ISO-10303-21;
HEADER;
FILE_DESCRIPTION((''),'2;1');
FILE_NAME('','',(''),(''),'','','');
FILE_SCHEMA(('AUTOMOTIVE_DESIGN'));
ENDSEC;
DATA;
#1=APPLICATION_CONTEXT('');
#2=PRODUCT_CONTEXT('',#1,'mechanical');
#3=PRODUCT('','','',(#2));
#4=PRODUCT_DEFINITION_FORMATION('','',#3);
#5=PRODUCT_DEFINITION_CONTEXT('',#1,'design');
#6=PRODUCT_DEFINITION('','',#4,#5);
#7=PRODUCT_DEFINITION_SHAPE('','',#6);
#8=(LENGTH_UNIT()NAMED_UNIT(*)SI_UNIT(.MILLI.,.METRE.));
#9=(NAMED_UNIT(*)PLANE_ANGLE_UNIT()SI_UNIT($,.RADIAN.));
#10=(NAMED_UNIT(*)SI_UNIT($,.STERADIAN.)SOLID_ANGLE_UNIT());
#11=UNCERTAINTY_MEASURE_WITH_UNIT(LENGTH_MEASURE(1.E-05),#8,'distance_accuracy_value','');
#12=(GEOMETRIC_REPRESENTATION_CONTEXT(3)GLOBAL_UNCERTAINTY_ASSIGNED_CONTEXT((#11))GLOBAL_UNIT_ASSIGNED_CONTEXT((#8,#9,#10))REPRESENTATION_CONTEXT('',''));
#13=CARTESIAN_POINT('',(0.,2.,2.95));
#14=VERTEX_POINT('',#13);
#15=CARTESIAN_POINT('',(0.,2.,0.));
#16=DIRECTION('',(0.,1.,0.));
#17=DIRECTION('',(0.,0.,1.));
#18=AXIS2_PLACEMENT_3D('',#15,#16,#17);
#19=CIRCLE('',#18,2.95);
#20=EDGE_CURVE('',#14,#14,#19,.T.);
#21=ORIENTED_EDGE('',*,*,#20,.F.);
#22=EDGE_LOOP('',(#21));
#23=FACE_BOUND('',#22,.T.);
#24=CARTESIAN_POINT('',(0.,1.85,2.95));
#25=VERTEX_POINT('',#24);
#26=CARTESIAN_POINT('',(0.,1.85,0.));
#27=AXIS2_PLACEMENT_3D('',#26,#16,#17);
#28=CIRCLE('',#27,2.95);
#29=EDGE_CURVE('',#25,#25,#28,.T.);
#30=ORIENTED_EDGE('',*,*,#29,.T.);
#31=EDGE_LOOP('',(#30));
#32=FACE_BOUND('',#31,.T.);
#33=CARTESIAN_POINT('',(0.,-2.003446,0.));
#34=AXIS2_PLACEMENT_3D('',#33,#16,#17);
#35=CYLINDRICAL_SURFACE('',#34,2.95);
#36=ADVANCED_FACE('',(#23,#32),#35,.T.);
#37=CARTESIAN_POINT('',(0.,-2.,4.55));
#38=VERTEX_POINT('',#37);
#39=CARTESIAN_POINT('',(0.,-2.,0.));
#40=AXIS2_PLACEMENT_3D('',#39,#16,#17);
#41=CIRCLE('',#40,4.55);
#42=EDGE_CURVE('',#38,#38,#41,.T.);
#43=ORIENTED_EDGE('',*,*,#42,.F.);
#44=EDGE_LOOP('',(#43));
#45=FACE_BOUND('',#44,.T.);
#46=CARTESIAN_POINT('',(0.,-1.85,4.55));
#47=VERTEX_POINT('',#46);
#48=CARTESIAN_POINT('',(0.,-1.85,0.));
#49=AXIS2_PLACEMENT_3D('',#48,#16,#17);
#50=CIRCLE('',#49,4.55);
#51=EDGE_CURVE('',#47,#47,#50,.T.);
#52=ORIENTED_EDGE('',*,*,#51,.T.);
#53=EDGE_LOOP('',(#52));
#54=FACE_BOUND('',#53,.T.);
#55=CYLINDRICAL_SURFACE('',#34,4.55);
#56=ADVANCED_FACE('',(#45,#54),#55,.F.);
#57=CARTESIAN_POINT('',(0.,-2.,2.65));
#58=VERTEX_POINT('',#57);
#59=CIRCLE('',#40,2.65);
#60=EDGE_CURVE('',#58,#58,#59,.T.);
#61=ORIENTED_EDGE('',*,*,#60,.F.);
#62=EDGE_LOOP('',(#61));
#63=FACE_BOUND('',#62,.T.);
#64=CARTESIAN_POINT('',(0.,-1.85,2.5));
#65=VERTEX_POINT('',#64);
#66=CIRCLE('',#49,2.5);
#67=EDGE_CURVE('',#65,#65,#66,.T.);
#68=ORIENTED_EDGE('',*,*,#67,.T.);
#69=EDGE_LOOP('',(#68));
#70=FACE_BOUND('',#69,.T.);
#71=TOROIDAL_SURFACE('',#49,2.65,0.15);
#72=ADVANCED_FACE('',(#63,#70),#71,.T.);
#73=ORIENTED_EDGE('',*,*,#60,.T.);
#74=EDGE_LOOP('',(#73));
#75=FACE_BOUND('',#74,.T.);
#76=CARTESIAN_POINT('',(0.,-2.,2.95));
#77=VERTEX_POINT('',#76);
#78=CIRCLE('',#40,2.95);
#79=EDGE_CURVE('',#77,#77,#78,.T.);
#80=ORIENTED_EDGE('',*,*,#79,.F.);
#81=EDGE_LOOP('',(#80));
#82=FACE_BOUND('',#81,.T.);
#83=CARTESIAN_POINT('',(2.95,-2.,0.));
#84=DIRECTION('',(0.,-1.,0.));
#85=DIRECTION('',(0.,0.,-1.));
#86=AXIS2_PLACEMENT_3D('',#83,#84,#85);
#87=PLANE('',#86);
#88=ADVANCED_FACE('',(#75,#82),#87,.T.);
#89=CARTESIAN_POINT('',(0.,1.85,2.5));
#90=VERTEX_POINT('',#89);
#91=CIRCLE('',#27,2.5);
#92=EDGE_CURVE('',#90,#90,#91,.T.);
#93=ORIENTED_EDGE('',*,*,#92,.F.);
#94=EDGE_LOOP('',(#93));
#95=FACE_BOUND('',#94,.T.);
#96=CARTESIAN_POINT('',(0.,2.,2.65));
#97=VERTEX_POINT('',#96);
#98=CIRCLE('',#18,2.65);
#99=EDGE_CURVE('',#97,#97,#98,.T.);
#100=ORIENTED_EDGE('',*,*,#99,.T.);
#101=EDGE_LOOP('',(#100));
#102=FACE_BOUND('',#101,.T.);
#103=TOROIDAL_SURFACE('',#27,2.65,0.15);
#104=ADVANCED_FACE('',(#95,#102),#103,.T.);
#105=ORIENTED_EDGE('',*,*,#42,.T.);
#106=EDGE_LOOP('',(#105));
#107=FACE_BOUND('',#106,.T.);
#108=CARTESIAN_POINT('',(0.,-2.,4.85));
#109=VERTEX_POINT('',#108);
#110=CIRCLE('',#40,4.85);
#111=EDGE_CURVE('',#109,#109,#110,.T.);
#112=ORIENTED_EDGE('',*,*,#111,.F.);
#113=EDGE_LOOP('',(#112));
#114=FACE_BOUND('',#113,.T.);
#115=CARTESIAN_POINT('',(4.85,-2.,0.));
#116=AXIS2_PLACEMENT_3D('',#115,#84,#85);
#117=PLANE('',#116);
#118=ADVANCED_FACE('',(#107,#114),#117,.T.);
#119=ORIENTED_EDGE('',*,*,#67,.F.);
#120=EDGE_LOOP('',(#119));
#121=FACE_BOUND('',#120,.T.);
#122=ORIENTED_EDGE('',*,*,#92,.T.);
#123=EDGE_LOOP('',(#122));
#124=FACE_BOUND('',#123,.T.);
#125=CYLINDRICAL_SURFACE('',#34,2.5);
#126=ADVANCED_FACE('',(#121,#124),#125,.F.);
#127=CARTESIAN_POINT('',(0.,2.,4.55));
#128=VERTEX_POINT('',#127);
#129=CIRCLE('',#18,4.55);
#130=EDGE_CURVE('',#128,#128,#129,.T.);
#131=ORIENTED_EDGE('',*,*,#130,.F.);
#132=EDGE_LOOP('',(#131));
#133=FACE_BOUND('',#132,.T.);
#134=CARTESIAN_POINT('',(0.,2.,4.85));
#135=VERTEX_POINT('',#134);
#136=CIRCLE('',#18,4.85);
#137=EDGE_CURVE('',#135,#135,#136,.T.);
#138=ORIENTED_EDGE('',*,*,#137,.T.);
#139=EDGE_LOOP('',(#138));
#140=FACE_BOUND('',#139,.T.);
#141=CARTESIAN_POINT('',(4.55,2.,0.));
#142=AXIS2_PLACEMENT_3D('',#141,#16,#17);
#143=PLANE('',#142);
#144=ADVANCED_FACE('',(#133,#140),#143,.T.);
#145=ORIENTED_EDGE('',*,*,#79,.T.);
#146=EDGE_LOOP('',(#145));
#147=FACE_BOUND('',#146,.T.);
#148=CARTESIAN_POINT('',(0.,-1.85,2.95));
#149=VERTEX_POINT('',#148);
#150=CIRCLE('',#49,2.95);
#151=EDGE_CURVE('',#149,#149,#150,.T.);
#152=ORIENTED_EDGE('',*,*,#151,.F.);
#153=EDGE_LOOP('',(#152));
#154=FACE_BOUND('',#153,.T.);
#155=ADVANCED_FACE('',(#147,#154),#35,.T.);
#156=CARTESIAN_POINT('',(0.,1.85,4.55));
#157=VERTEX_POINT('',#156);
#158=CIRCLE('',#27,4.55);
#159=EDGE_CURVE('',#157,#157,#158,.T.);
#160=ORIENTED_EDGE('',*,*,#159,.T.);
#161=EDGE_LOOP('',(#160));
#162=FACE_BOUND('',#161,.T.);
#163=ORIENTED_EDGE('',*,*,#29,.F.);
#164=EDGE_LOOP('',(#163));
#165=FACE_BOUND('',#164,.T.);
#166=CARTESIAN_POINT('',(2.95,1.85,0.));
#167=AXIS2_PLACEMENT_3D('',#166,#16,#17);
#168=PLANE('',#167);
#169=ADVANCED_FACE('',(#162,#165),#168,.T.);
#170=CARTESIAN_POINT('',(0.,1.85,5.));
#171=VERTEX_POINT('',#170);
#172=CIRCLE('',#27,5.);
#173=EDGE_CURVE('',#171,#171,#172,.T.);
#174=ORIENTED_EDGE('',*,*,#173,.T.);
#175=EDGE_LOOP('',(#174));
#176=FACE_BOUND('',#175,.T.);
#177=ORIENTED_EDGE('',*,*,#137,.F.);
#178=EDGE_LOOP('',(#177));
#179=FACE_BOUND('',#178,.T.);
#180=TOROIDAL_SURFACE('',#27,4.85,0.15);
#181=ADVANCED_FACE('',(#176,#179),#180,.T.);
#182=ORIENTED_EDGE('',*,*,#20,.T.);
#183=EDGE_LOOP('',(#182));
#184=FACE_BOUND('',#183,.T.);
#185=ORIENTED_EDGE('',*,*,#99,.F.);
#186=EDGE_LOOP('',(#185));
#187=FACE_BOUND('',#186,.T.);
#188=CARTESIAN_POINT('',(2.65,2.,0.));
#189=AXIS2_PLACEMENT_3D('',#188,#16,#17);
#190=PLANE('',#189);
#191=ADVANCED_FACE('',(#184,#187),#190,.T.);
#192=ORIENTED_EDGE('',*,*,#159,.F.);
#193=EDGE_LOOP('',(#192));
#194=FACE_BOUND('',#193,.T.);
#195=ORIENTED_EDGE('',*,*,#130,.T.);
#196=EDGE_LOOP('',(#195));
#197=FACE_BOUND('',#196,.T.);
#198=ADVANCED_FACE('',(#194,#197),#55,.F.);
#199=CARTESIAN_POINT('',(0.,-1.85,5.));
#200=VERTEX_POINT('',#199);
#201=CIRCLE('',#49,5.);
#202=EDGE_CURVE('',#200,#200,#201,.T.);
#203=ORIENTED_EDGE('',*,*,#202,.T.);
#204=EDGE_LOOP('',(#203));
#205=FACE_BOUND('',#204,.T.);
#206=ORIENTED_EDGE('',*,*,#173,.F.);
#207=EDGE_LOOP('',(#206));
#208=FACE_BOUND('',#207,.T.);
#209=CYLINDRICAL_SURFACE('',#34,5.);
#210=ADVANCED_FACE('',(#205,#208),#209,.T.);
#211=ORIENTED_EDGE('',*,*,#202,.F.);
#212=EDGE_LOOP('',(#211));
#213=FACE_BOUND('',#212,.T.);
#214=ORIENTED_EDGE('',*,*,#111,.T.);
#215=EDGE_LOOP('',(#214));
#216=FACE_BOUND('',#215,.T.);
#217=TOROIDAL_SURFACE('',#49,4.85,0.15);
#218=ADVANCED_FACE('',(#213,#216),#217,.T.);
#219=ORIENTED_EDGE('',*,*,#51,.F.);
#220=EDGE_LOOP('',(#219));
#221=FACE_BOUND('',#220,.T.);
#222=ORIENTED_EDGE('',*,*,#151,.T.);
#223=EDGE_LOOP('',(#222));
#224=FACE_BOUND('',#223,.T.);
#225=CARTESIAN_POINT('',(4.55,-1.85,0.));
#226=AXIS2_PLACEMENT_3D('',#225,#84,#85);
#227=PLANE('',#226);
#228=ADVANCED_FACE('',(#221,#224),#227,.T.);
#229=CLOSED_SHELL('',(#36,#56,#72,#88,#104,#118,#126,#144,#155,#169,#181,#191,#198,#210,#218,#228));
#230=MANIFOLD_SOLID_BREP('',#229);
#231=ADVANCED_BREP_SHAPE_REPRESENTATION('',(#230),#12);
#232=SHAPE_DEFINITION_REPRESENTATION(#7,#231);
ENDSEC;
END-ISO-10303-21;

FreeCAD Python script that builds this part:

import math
import FreeCAD as App
import Part
import Sketcher

V = App.Vector
Q = App.Units.Quantity

doc = App.newDocument("Part")
body = doc.addObject("PartDesign::Body", "Body")

# Sketch on XY plane
sketch1 = body.newObject("Sketcher::SketchObject", "Sketch")
sketch1.AttachmentSupport = (doc.getObject("XY_Plane"), [""])
sketch1.MapMode = "FlatFace"
sketch1.addGeometry(Part.LineSegment(V(2.5, -1.85, 0), V(2.5, 1.85, 0)), False)
sketch1.addGeometry(Part.ArcOfCircle(Part.Circle(V(2.65, 1.85, 0), V(0, 0, 1), 0.15), math.radians(90), math.radians(180)), False)
sketch1.addGeometry(Part.LineSegment(V(2.65, 2, 0), V(2.95, 2, 0)), False)
sketch1.addGeometry(Part.LineSegment(V(2.95, 2, 0), V(2.95, 1.85, 0)), False)
sketch1.addGeometry(Part.LineSegment(V(2.95, 1.85, 0), V(4.55, 1.85, 0)), False)
sketch1.addGeometry(Part.LineSegment(V(4.55, 1.85, 0), V(4.55, 2, 0)), False)
sketch1.addGeometry(Part.LineSegment(V(4.55, 2, 0), V(4.85, 2, 0)), False)
sketch1.addGeometry(Part.ArcOfCircle(Part.Circle(V(4.85, 1.85, 0), V(0, 0, 1), 0.15), math.radians(0), math.radians(90)), False)
sketch1.addGeometry(Part.LineSegment(V(5, 1.85, 0), V(5, -1.85, 0)), False)
sketch1.addGeometry(Part.ArcOfCircle(Part.Circle(V(4.85, -1.85, 0), V(0, 0, 1), 0.15), math.radians(-90), math.radians(0)), False)
sketch1.addGeometry(Part.LineSegment(V(4.85, -2, 0), V(4.55, -2, 0)), False)
sketch1.addGeometry(Part.LineSegment(V(4.55, -2, 0), V(4.55, -1.85, 0)), False)
sketch1.addGeometry(Part.LineSegment(V(4.55, -1.85, 0), V(2.95, -1.85, 0)), False)
sketch1.addGeometry(Part.LineSegment(V(2.95, -1.85, 0), V(2.95, -2, 0)), False)
sketch1.addGeometry(Part.LineSegment(V(2.95, -2, 0), V(2.65, -2, 0)), False)
sketch1.addGeometry(Part.ArcOfCircle(Part.Circle(V(2.65, -1.85, 0), V(0, 0, 1), 0.15), math.radians(-180), math.radians(-90)), False)
sketch1.addConstraint(Sketcher.Constraint("Tangent", 0, 2, 1, 2))
sketch1.addConstraint(Sketcher.Constraint("Tangent", 1, 1, 2, 1))
sketch1.addConstraint(Sketcher.Constraint("Coincident", 2, 2, 3, 1))
sketch1.addConstraint(Sketcher.Constraint("Coincident", 3, 2, 4, 1))
sketch1.addConstraint(Sketcher.Constraint("Coincident", 4, 2, 5, 1))
sketch1.addConstraint(Sketcher.Constraint("Coincident", 5, 2, 6, 1))
sketch1.addConstraint(Sketcher.Constraint("Tangent", 6, 2, 7, 2))
sketch1.addConstraint(Sketcher.Constraint("Tangent", 7, 1, 8, 1))
sketch1.addConstraint(Sketcher.Constraint("Tangent", 8, 2, 9, 2))
sketch1.addConstraint(Sketcher.Constraint("Tangent", 9, 1, 10, 1))
sketch1.addConstraint(Sketcher.Constraint("Coincident", 10, 2, 11, 1))
sketch1.addConstraint(Sketcher.Constraint("Coincident", 11, 2, 12, 1))
sketch1.addConstraint(Sketcher.Constraint("Coincident", 12, 2, 13, 1))
sketch1.addConstraint(Sketcher.Constraint("Coincident", 13, 2, 14, 1))
sketch1.addConstraint(Sketcher.Constraint("Tangent", 14, 2, 15, 2))
sketch1.addConstraint(Sketcher.Constraint("Tangent", 15, 1, 0, 1))
sketch1.addConstraint(Sketcher.Constraint("Vertical", 0))
sketch1.addConstraint(Sketcher.Constraint("Horizontal", 2))
sketch1.addConstraint(Sketcher.Constraint("Vertical", 3))
sketch1.addConstraint(Sketcher.Constraint("Horizontal", 4))
sketch1.addConstraint(Sketcher.Constraint("Vertical", 5))
sketch1.addConstraint(Sketcher.Constraint("Horizontal", 6))
sketch1.addConstraint(Sketcher.Constraint("Vertical", 8))
sketch1.addConstraint(Sketcher.Constraint("Horizontal", 10))
sketch1.addConstraint(Sketcher.Constraint("Vertical", 11))
sketch1.addConstraint(Sketcher.Constraint("Horizontal", 12))
sketch1.addConstraint(Sketcher.Constraint("Vertical", 13))
sketch1.addConstraint(Sketcher.Constraint("Horizontal", 14))
sketch1.addConstraint(Sketcher.Constraint("Equal", 1, 7))
sketch1.addConstraint(Sketcher.Constraint("Equal", 7, 9))
sketch1.addConstraint(Sketcher.Constraint("Equal", 9, 15))
sketch1.addConstraint(Sketcher.Constraint("Symmetric", 5, 2, 10, 2, -1))
sketch1.addConstraint(Sketcher.Constraint("Symmetric", 3, 2, 12, 2, -1))
sketch1.addConstraint(Sketcher.Constraint("Horizontal", 1, 3, 7, 3))
sketch1.addConstraint(Sketcher.Constraint("Horizontal", 9, 3, 15, 3))
sketch1.addConstraint(Sketcher.Constraint("Horizontal", 0, 2, 3, 2))
sketch1.addConstraint(Sketcher.Constraint("Equal", 2, 6))
sketch1.addConstraint(Sketcher.Constraint("Radius", 1, Q("0.15 mm")))
sketch1.addConstraint(Sketcher.Constraint("DistanceX", 2, 1, 2, 2, Q("0.3 mm")))
sketch1.addConstraint(Sketcher.Constraint("DistanceX", 4, 1, 4, 2, Q("1.6 mm")))
sketch1.addConstraint(Sketcher.Constraint("DistanceY", 0, 1, 0, 2, Q("3.7 mm")))
sketch1.addConstraint(Sketcher.Constraint("DistanceX", -1, 1, 7, 1, Q("5 mm")))
revolution = body.newObject("PartDesign::Revolution", "Revolution")
revolution.Profile = sketch1
revolution.ReferenceAxis = (sketch1, ["V_Axis"])
revolution.Angle = 360

doc.recompute()
